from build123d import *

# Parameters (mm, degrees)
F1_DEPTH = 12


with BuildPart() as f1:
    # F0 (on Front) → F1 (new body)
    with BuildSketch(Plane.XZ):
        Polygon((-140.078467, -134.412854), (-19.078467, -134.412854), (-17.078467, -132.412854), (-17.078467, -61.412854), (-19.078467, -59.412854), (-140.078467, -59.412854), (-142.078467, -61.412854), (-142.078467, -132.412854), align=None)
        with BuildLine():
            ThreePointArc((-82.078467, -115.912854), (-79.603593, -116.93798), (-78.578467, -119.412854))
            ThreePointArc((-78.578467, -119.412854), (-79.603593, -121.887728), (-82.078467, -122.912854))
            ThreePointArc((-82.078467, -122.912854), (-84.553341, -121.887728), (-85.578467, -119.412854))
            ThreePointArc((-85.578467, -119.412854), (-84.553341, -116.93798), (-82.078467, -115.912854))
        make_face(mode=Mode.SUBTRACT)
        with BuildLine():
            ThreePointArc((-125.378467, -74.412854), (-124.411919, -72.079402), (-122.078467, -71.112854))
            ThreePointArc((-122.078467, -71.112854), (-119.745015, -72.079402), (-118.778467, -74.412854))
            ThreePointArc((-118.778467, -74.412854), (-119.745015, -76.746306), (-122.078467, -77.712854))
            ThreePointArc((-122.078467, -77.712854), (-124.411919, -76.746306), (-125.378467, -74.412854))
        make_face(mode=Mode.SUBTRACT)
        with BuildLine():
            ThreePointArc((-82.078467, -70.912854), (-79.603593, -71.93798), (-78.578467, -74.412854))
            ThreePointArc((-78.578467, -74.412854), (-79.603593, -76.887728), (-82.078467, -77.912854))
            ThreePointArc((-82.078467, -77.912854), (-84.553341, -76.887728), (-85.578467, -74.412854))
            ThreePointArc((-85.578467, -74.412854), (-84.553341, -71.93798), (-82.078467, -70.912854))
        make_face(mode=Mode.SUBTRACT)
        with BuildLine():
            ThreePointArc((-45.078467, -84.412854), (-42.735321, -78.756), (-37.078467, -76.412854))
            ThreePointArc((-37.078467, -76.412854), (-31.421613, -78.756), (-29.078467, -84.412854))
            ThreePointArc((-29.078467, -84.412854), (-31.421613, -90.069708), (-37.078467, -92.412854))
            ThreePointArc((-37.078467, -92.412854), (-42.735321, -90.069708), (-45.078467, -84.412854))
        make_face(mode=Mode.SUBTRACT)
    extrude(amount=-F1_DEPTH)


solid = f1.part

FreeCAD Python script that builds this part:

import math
import FreeCAD as App
import Part
import Sketcher

V = App.Vector
Q = App.Units.Quantity


def add_polygon(sketch, points):
    """Adds a closed chain of lines whose ends are joined by coincident constraints."""
    first, n = sketch.GeometryCount, len(points)
    for a, b in zip(points, points[1:] + points[:1]):
        sketch.addGeometry(Part.LineSegment(App.Vector(*a, 0), App.Vector(*b, 0)), False)
    for i in range(n):
        sketch.addConstraint(Sketcher.Constraint("Coincident", first + i, 2, first + (i + 1) % n, 1))

doc = App.newDocument("Part")
body = doc.addObject("PartDesign::Body", "Body")

sketch1 = doc.addObject("Sketcher::SketchObject", "Sketch")
body.addObject(sketch1)
sketch1.AttachmentSupport = (doc.XZ_Plane, [""])
sketch1.MapMode = "FlatFace"
add_polygon(sketch1, [(-140.1, -134.4), (-19.1, -134.4), (-17.1, -132.4), (-17.1, -61.4), (-19.1, -59.4), (-140.1, -59.4), (-142.1, -61.4), (-142.1, -132.4)])
sketch1.addGeometry(Part.ArcOfCircle(Part.Circle(V(-82.1, -119.4, 0), V(0, 0, 1), 3.5), math.radians(90), math.radians(180)), False)
sketch1.addGeometry(Part.ArcOfCircle(Part.Circle(V(-82.1, -119.4, 0), V(0, 0, 1), 3.5), math.radians(0), math.radians(90)), False)
sketch1.addGeometry(Part.ArcOfCircle(Part.Circle(V(-82.1, -119.4, 0), V(0, 0, 1), 3.5), math.radians(-90), math.radians(0)), False)
sketch1.addGeometry(Part.ArcOfCircle(Part.Circle(V(-82.1, -119.4, 0), V(0, 0, 1), 3.5), math.radians(180), math.radians(270)), False)
sketch1.addGeometry(Part.ArcOfCircle(Part.Circle(V(-122.1, -74.4, 0), V(0, 0, 1), 3.3), math.radians(-180), math.radians(-90)), False)
sketch1.addGeometry(Part.ArcOfCircle(Part.Circle(V(-122.1, -74.4, 0), V(0, 0, 1), 3.3), math.radians(90), math.radians(180)), False)
sketch1.addGeometry(Part.ArcOfCircle(Part.Circle(V(-122.1, -74.4, 0), V(0, 0, 1), 3.3), math.radians(0), math.radians(90)), False)
sketch1.addGeometry(Part.ArcOfCircle(Part.Circle(V(-122.1, -74.4, 0), V(0, 0, 1), 3.3), math.radians(-90), math.radians(0)), False)
sketch1.addGeometry(Part.ArcOfCircle(Part.Circle(V(-82.1, -74.4, 0), V(0, 0, 1), 3.5), math.radians(90), math.radians(180)), False)
sketch1.addGeometry(Part.ArcOfCircle(Part.Circle(V(-82.1, -74.4, 0), V(0, 0, 1), 3.5), math.radians(0), math.radians(90)), False)
sketch1.addGeometry(Part.ArcOfCircle(Part.Circle(V(-82.1, -74.4, 0), V(0, 0, 1), 3.5), math.radians(-90), math.radians(0)), False)
sketch1.addGeometry(Part.ArcOfCircle(Part.Circle(V(-82.1, -74.4, 0), V(0, 0, 1), 3.5), math.radians(180), math.radians(270)), False)
sketch1.addGeometry(Part.ArcOfCircle(Part.Circle(V(-37.1, -84.4, 0), V(0, 0, 1), 8), math.radians(-180), math.radians(-90)), False)
sketch1.addGeometry(Part.ArcOfCircle(Part.Circle(V(-37.1, -84.4, 0), V(0, 0, 1), 8), math.radians(90), math.radians(180)), False)
sketch1.addGeometry(Part.ArcOfCircle(Part.Circle(V(-37.1, -84.4, 0), V(0, 0, 1), 8), math.radians(0), math.radians(90)), False)
sketch1.addGeometry(Part.ArcOfCircle(Part.Circle(V(-37.1, -84.4, 0), V(0, 0, 1), 8), math.radians(-90), math.radians(0)), False)
sketch1.addConstraint(Sketcher.Constraint("Tangent", 8, 1, 9, 2))
sketch1.addConstraint(Sketcher.Constraint("Tangent", 9, 1, 10, 2))
sketch1.addConstraint(Sketcher.Constraint("Tangent", 10, 1, 11, 2))
sketch1.addConstraint(Sketcher.Constraint("Tangent", 11, 1, 8, 2))
sketch1.addConstraint(Sketcher.Constraint("Tangent", 12, 1, 13, 2))
sketch1.addConstraint(Sketcher.Constraint("Tangent", 13, 1, 14, 2))
sketch1.addConstraint(Sketcher.Constraint("Tangent", 14, 1, 15, 2))
sketch1.addConstraint(Sketcher.Constraint("Tangent", 15, 1, 12, 2))
sketch1.addConstraint(Sketcher.Constraint("Tangent", 16, 1, 17, 2))
sketch1.addConstraint(Sketcher.Constraint("Tangent", 17, 1, 18, 2))
sketch1.addConstraint(Sketcher.Constraint("Tangent", 18, 1, 19, 2))
sketch1.addConstraint(Sketcher.Constraint("Tangent", 19, 1, 16, 2))
sketch1.addConstraint(Sketcher.Constraint("Tangent", 20, 1, 21, 2))
sketch1.addConstraint(Sketcher.Constraint("Tangent", 21, 1, 22, 2))
sketch1.addConstraint(Sketcher.Constraint("Tangent", 22, 1, 23, 2))
sketch1.addConstraint(Sketcher.Constraint("Tangent", 23, 1, 20, 2))
sketch1.addConstraint(Sketcher.Constraint("Horizontal", 0))
sketch1.addConstraint(Sketcher.Constraint("Vertical", 2))
sketch1.addConstraint(Sketcher.Constraint("Horizontal", 4))
sketch1.addConstraint(Sketcher.Constraint("Vertical", 6))
sketch1.addConstraint(Sketcher.Constraint("Equal", 8, 9))
sketch1.addConstraint(Sketcher.Constraint("Equal", 12, 13))
sketch1.addConstraint(Sketcher.Constraint("Equal", 11, 16))
sketch1.addConstraint(Sketcher.Constraint("Equal", 16, 17))
sketch1.addConstraint(Sketcher.Constraint("Equal", 20, 21))
sketch1.addConstraint(Sketcher.Constraint("Perpendicular", 1, 3))
sketch1.addConstraint(Sketcher.Constraint("Perpendicular", 3, 5))
sketch1.addConstraint(Sketcher.Constraint("Perpendicular", 5, 7))
sketch1.addConstraint(Sketcher.Constraint("Horizontal", 15, 3, 16, 3))
sketch1.addConstraint(Sketcher.Constraint("Horizontal", 2, 2, 5, 2))
sketch1.addConstraint(Sketcher.Constraint("Horizontal", 1, 2, 6, 2))
sketch1.addConstraint(Sketcher.Constraint("Horizontal", 11, 3, 9, 1))
sketch1.addConstraint(Sketcher.Constraint("Horizontal", 9, 1, 11, 1))
sketch1.addConstraint(Sketcher.Constraint("Horizontal", 19, 3, 12, 1))
sketch1.addConstraint(Sketcher.Constraint("Horizontal", 12, 1, 14, 1))
sketch1.addConstraint(Sketcher.Constraint("Horizontal", 14, 1, 17, 1))
sketch1.addConstraint(Sketcher.Constraint("Horizontal", 17, 1, 19, 1))
sketch1.addConstraint(Sketcher.Constraint("Horizontal", 23, 3, 20, 1))
sketch1.addConstraint(Sketcher.Constraint("Horizontal", 20, 1, 22, 1))
sketch1.addConstraint(Sketcher.Constraint("Vertical", 11, 3, 16, 3))
sketch1.addConstraint(Sketcher.Constraint("Vertical", 0, 2, 3, 2))
sketch1.addConstraint(Sketcher.Constraint("Vertical", 4, 2, 7, 2))
sketch1.addConstraint(Sketcher.Constraint("Vertical", 19, 3, 8, 1))
sketch1.addConstraint(Sketcher.Constraint("Vertical", 8, 1, 10, 1))
sketch1.addConstraint(Sketcher.Constraint("Vertical", 15, 3, 13, 1))
sketch1.addConstraint(Sketcher.Constraint("Vertical", 13, 1, 15, 1))
sketch1.addConstraint(Sketcher.Constraint("Vertical", 10, 1, 16, 1))
sketch1.addConstraint(Sketcher.Constraint("Vertical", 16, 1, 18, 1))
sketch1.addConstraint(Sketcher.Constraint("Vertical", 23, 3, 21, 1))
sketch1.addConstraint(Sketcher.Constraint("Vertical", 21, 1, 23, 1))
sketch1.addConstraint(Sketcher.Constraint("Radius", 20, Q("8.000001 mm")))
sketch1.addConstraint(Sketcher.Constraint("Radius", 8, Q("3.499999 mm")))
sketch1.addConstraint(Sketcher.Constraint("Radius", 12, Q("3.300001 mm")))
sketch1.addConstraint(Sketcher.Constraint("DistanceX", 0, 1, 0, 2, Q("121 mm")))
sketch1.addConstraint(Sketcher.Constraint("DistanceY", 2, 1, 2, 2, Q("71 mm")))
sketch1.addConstraint(Sketcher.Constraint("DistanceY", 8, 3, 12, 3, Q("45 mm")))
sketch1.addConstraint(Sketcher.Constraint("DistanceX", 12, 3, 9, 3, Q("40 mm")))
sketch1.addConstraint(Sketcher.Constraint("DistanceX", 18, 3, 20, 3, Q("45 mm")))
sketch1.addConstraint(Sketcher.Constraint("DistanceY", 20, 3, 18, 3, Q("9.999998 mm")))
sketch1.addConstraint(Sketcher.Constraint("DistanceX", 21, 3, 0, 2, Q("17.999999 mm")))
sketch1.addConstraint(Sketcher.Constraint("DistanceY", 0, 2, 21, 3, Q("49.999999 mm")))
sketch1.addConstraint(Sketcher.Constraint("DistanceX", 0, 2, 1, 2, Q("2 mm")))
sketch1.addConstraint(Sketcher.Constraint("DistanceX", 14, 3, -1, 1, Q("122.078468 mm")))
sketch1.addConstraint(Sketcher.Constraint("DistanceY", 8, 3, -1, 1, Q("119.412853 mm")))
pad1 = doc.addObject("PartDesign::Pad", "Pad")
body.addObject(pad1)
pad1.Profile = sketch1
pad1.Length = 12
pad1.Reversed = True

doc.recompute()
